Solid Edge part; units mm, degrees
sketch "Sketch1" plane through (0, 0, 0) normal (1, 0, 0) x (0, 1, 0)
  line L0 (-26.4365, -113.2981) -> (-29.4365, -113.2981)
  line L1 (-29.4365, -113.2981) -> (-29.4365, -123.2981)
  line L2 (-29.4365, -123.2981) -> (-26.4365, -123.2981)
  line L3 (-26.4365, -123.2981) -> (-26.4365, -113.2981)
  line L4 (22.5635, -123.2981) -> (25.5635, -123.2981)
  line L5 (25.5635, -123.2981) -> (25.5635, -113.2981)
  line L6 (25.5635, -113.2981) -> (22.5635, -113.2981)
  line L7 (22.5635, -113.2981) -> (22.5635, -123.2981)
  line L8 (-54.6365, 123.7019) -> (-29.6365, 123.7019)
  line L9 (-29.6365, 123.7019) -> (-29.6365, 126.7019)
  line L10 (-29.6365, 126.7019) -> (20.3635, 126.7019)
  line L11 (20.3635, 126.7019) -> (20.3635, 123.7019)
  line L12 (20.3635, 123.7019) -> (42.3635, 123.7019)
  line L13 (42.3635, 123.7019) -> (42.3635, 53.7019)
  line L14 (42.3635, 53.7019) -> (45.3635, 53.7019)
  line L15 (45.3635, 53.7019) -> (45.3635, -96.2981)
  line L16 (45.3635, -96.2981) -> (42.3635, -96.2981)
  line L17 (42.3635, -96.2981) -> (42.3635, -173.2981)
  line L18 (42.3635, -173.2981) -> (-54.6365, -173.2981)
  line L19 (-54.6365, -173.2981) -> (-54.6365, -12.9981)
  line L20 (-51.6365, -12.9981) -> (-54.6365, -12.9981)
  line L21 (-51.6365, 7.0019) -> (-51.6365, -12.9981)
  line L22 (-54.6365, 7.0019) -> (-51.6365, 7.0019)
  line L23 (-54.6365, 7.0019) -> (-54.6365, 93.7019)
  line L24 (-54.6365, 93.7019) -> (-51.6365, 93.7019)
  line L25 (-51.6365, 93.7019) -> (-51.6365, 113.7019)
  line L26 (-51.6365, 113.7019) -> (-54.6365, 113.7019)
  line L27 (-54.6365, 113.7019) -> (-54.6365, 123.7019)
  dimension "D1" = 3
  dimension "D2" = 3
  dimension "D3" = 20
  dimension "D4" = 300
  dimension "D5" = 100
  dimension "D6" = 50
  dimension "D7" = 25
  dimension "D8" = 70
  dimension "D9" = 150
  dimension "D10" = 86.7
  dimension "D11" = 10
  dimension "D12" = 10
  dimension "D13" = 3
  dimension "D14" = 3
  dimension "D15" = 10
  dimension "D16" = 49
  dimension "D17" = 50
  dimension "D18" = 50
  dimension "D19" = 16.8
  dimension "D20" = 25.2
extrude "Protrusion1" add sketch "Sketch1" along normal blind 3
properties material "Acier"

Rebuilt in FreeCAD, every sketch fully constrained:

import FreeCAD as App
import Part
import Sketcher


def add_polygon(sketch, points):
    """Adds a closed chain of lines whose ends are joined by coincident constraints."""
    first, n = sketch.GeometryCount, len(points)
    for a, b in zip(points, points[1:] + points[:1]):
        sketch.addGeometry(Part.LineSegment(App.Vector(*a, 0), App.Vector(*b, 0)), False)
    for i in range(n):
        sketch.addConstraint(Sketcher.Constraint("Coincident", first + i, 2, first + (i + 1) % n, 1))

doc = App.newDocument("Part")
body = doc.addObject("PartDesign::Body", "Body")

# Sketch on YZ plane
sketch1 = body.newObject("Sketcher::SketchObject", "Sketch")
sketch1.AttachmentSupport = (doc.getObject("YZ_Plane"), [""])
sketch1.MapMode = "FlatFace"
add_polygon(sketch1, [(-29.6, 123.7), (-54.6, 123.7), (-54.6, 113.7), (-51.6, 113.7), (-51.6, 93.7), (-54.6, 93.7), (-54.6, 7), (-51.6, 7), (-51.6, -13), (-54.6, -13), (-54.6, -173.3), (42.4, -173.3), (42.4, -96.3), (45.4, -96.3), (45.4, 53.7), (42.4, 53.7), (42.4, 123.7), (20.4, 123.7), (20.4, 126.7), (-29.6, 126.7)])  # lines 0-19
add_polygon(sketch1, [(-29.4, -113.3), (-26.4, -113.3), (-26.4, -123.3), (-29.4, -123.3)])  # lines 20-23
add_polygon(sketch1, [(25.6, -123.3), (22.6, -123.3), (22.6, -113.3), (25.6, -113.3)])  # lines 24-27
sketch1.addConstraint(Sketcher.Constraint("Horizontal", 0))
sketch1.addConstraint(Sketcher.Constraint("Vertical", 1))
sketch1.addConstraint(Sketcher.Constraint("Horizontal", 2))
sketch1.addConstraint(Sketcher.Constraint("Vertical", 3))
sketch1.addConstraint(Sketcher.Constraint("Horizontal", 4))
sketch1.addConstraint(Sketcher.Constraint("Vertical", 5))
sketch1.addConstraint(Sketcher.Constraint("Horizontal", 6))
sketch1.addConstraint(Sketcher.Constraint("Vertical", 7))
sketch1.addConstraint(Sketcher.Constraint("Horizontal", 8))
sketch1.addConstraint(Sketcher.Constraint("Vertical", 9))
sketch1.addConstraint(Sketcher.Constraint("Horizontal", 10))
sketch1.addConstraint(Sketcher.Constraint("Vertical", 11))
sketch1.addConstraint(Sketcher.Constraint("Horizontal", 12))
sketch1.addConstraint(Sketcher.Constraint("Vertical", 13))
sketch1.addConstraint(Sketcher.Constraint("Horizontal", 14))
sketch1.addConstraint(Sketcher.Constraint("Vertical", 15))
sketch1.addConstraint(Sketcher.Constraint("Horizontal", 16))
sketch1.addConstraint(Sketcher.Constraint("Vertical", 17))
sketch1.addConstraint(Sketcher.Constraint("Horizontal", 18))
sketch1.addConstraint(Sketcher.Constraint("Vertical", 19))
sketch1.addConstraint(Sketcher.Constraint("Horizontal", 20))
sketch1.addConstraint(Sketcher.Constraint("Vertical", 21))
sketch1.addConstraint(Sketcher.Constraint("Horizontal", 22))
sketch1.addConstraint(Sketcher.Constraint("Vertical", 23))
sketch1.addConstraint(Sketcher.Constraint("Horizontal", 24))
sketch1.addConstraint(Sketcher.Constraint("Vertical", 25))
sketch1.addConstraint(Sketcher.Constraint("Horizontal", 26))
sketch1.addConstraint(Sketcher.Constraint("Vertical", 27))
sketch1.addConstraint(Sketcher.Constraint("Horizontal", 0, 2, 15, 2))
sketch1.addConstraint(Sketcher.Constraint("Horizontal", 22, 2, 24, 2))
sketch1.addConstraint(Sketcher.Constraint("Horizontal", 23, 2, 25, 2))
sketch1.addConstraint(Sketcher.Constraint("Vertical", 1, 2, 4, 2))
sketch1.addConstraint(Sketcher.Constraint("Vertical", 3, 2, 6, 2))
sketch1.addConstraint(Sketcher.Constraint("Vertical", 5, 2, 8, 2))
sketch1.addConstraint(Sketcher.Constraint("Vertical", 11, 2, 14, 2))
sketch1.addConstraint(Sketcher.Constraint("Equal", 8, 12))
sketch1.addConstraint(Sketcher.Constraint("Equal", 14, 20))
sketch1.addConstraint(Sketcher.Constraint("Equal", 22, 24))
sketch1.addConstraint(Sketcher.Constraint("Equal", 3, 7))
sketch1.addConstraint(Sketcher.Constraint("Equal", 26, 17))
sketch1.addConstraint(Sketcher.Constraint("Equal", 1, 21))
sketch1.addConstraint(Sketcher.Constraint("DistanceX", 0, 2, 0, 1, 25.0))
sketch1.addConstraint(Sketcher.Constraint("DistanceX", 2, 1, 2, 2, 3.0))
sketch1.addConstraint(Sketcher.Constraint("DistanceX", 10, 1, 10, 2, 97.0))
sketch1.addConstraint(Sketcher.Constraint("DistanceX", 16, 2, 16, 1, 22.0))
sketch1.addConstraint(Sketcher.Constraint("DistanceY", 1, 2, 1, 1, 10.0))
sketch1.addConstraint(Sketcher.Constraint("DistanceY", 3, 2, 3, 1, 20.0))
sketch1.addConstraint(Sketcher.Constraint("DistanceY", 11, 1, 11, 2, 77.0))
sketch1.addConstraint(Sketcher.Constraint("DistanceY", 13, 1, 13, 2, 150.0))
sketch1.addConstraint(Sketcher.Constraint("DistanceY", 15, 1, 15, 2, 70.0))
sketch1.addConstraint(Sketcher.Constraint("DistanceY", 5, 2, 5, 1, 86.7))
sketch1.addConstraint(Sketcher.Constraint("DistanceY", 9, 2, 20, 2, 60.0))
sketch1.addConstraint(Sketcher.Constraint("DistanceX", 21, 2, 24, 2, 49.0))
sketch1.addConstraint(Sketcher.Constraint("DistanceX", 0, 2, -1, 1, 54.6365))
sketch1.addConstraint(Sketcher.Constraint("DistanceX", 20, 2, -1, 1, 26.4365))
sketch1.addConstraint(Sketcher.Constraint("DistanceY", -1, 1, 0, 2, 123.702))
pad1 = body.newObject("PartDesign::Pad", "Pad")
pad1.Profile = sketch1
pad1.Length = 3

doc.recompute()
